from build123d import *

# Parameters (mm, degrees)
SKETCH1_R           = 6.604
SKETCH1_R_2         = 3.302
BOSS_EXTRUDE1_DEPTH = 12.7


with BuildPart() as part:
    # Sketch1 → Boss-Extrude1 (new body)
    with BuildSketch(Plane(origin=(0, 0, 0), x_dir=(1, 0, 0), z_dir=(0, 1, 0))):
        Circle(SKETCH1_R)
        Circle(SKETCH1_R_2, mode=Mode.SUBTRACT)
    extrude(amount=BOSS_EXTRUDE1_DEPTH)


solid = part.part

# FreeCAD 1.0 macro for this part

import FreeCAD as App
import Part
import Sketcher

V = App.Vector
Q = App.Units.Quantity

doc = App.newDocument("Part")
body = doc.addObject("PartDesign::Body", "Body")

# Sketch on XZ plane
sketch1 = body.newObject("Sketcher::SketchObject", "Sketch")
sketch1.AttachmentSupport = (doc.getObject("XZ_Plane"), [""])
sketch1.MapMode = "FlatFace"
sketch1.addGeometry(Part.Circle(V(0, 0, 0), V(0, 0, 1), 6.6), False)
sketch1.addGeometry(Part.Circle(V(0, 0, 0), V(0, 0, 1), 3.3), False)
sketch1.addConstraint(Sketcher.Constraint("Coincident", 0, 3, -1, 1))
sketch1.addConstraint(Sketcher.Constraint("Coincident", 1, 3, -1, 1))
sketch1.addConstraint(Sketcher.Constraint("Diameter", 0, Q("0.52 in")))
sketch1.addConstraint(Sketcher.Constraint("Diameter", 1, Q("0.26 in")))
pad1 = body.newObject("PartDesign::Pad", "Pad")
pad1.Profile = sketch1
pad1.Length = Q("0.5 in")
pad1.Reversed = True

doc.recompute()
